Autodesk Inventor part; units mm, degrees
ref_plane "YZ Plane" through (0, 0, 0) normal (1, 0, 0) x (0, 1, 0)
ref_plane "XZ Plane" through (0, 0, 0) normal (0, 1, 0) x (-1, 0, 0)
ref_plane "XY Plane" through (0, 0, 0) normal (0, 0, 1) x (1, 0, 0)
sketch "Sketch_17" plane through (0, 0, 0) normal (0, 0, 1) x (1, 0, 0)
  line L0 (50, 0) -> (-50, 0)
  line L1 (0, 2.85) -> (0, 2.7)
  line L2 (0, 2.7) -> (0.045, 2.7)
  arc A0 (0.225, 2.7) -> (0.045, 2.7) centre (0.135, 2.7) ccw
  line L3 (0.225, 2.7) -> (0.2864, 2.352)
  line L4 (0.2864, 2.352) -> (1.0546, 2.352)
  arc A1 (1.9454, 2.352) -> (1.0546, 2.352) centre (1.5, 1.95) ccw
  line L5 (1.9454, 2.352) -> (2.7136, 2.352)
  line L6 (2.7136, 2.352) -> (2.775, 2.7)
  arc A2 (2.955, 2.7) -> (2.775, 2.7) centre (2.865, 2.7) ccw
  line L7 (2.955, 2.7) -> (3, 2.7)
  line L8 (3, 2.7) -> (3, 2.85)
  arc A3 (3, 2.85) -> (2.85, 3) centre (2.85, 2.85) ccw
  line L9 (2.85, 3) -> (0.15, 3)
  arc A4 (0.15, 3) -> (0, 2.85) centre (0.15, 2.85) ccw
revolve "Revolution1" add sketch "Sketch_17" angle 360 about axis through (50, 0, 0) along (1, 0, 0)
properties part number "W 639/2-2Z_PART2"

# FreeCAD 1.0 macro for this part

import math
import FreeCAD as App
import Part
import Sketcher

doc = App.newDocument("Part")
params = doc.addObject("Spreadsheet::Sheet", "Params")
for row, (alias, value) in enumerate([
    ("sketch1_radius", "0.6 mm"),
    ("sketch1_radius2", "0.15 mm"),
    ("sketch1_radius3", "0.09 mm"),
    ("sketch1_width", "2.7 mm"),
    ("sketch1_height", "0.15 mm"),
    ("revolution_angle", "360 deg"),
], start=1):
    params.set(f"A{row}", alias)
    params.set(f"B{row}", "=" + value)
    params.setAlias(f"B{row}", alias)

body = doc.addObject("PartDesign::Body", "Body")

sketch1 = body.newObject("Sketcher::SketchObject", "Sketch")
sketch1.AttachmentSupport = (doc.getObject("XY_Plane"), [""])
sketch1.MapMode = "FlatFace"
sketch1.addGeometry([
    Part.ArcOfCircle(Part.Circle(App.Vector(0.15, 2.85, 0), App.Vector(0, 0, 1), 0.15), math.radians(90), math.radians(180)),
    Part.LineSegment(App.Vector(0, 2.85, 0), App.Vector(0, 2.7, 0)),
    Part.LineSegment(App.Vector(0, 2.7, 0), App.Vector(0.045, 2.7, 0)),
    Part.ArcOfCircle(Part.Circle(App.Vector(0.135, 2.7, 0), App.Vector(0, 0, 1), 0.09), math.radians(0), math.radians(180)),
    Part.LineSegment(App.Vector(0.225, 2.7, 0), App.Vector(0.286, 2.352, 0)),
    Part.LineSegment(App.Vector(0.286, 2.352, 0), App.Vector(1.055, 2.352, 0)),
    Part.ArcOfCircle(Part.Circle(App.Vector(1.5, 1.95, 0), App.Vector(0, 0, 1), 0.6), math.radians(42), math.radians(138)),
    Part.LineSegment(App.Vector(1.945, 2.352, 0), App.Vector(2.714, 2.352, 0)),
    Part.LineSegment(App.Vector(2.714, 2.352, 0), App.Vector(2.775, 2.7, 0)),
    Part.ArcOfCircle(Part.Circle(App.Vector(2.865, 2.7, 0), App.Vector(0, 0, 1), 0.09), math.radians(0), math.radians(180)),
    Part.LineSegment(App.Vector(2.955, 2.7, 0), App.Vector(3, 2.7, 0)),
    Part.LineSegment(App.Vector(3, 2.7, 0), App.Vector(3, 2.85, 0)),
    Part.ArcOfCircle(Part.Circle(App.Vector(2.85, 2.85, 0), App.Vector(0, 0, 1), 0.15), math.radians(0), math.radians(90)),
    Part.LineSegment(App.Vector(2.85, 3, 0), App.Vector(0.15, 3, 0)),
], False)
sketch1.addConstraint([
    Sketcher.Constraint("Tangent", 0, 2, 1, 1),
    Sketcher.Constraint("Coincident", 1, 2, 2, 1),
    Sketcher.Constraint("Coincident", 2, 2, 3, 2),
    Sketcher.Constraint("Coincident", 3, 1, 4, 1),
    Sketcher.Constraint("Coincident", 4, 2, 5, 1),
    Sketcher.Constraint("Coincident", 5, 2, 6, 2),
    Sketcher.Constraint("Coincident", 6, 1, 7, 1),
    Sketcher.Constraint("Coincident", 7, 2, 8, 1),
    Sketcher.Constraint("Coincident", 8, 2, 9, 2),
    Sketcher.Constraint("Coincident", 9, 1, 10, 1),
    Sketcher.Constraint("Coincident", 10, 2, 11, 1),
    Sketcher.Constraint("Tangent", 11, 2, 12, 1),
    Sketcher.Constraint("Tangent", 12, 2, 13, 1),
    Sketcher.Constraint("Tangent", 13, 2, 0, 1),
    Sketcher.Constraint("Vertical", 1),
    Sketcher.Constraint("Horizontal", 2),
    Sketcher.Constraint("Horizontal", 5),
    Sketcher.Constraint("Horizontal", 7),
    Sketcher.Constraint("Horizontal", 10),
    Sketcher.Constraint("Vertical", 11),
    Sketcher.Constraint("Horizontal", 13),
    Sketcher.Constraint("Equal", 3, 9),
    Sketcher.Constraint("Equal", 0, 12),
    Sketcher.Constraint("PointOnObject", 0, 2, -2),
    Sketcher.Constraint("Horizontal", 3, 3, 9, 3),
    Sketcher.Constraint("Horizontal", 9, 3, 1, 2),
    Sketcher.Constraint("Horizontal", 2, 2, 3, 1),
    Sketcher.Constraint("Horizontal", 5, 2, 6, 1),
    Sketcher.Constraint("Horizontal", 3, 1, 8, 2),
    Sketcher.Constraint("Horizontal", 8, 2, 9, 1),
    Sketcher.Constraint("Equal", 5, 7),
    Sketcher.Constraint("Equal", 2, 10),
    Sketcher.Constraint("Equal", 4, 8),
    Sketcher.Constraint("Radius", 6, 0.6),
    Sketcher.Constraint("Radius", 0, 0.15),
    Sketcher.Constraint("Radius", 3, 0.09),
    Sketcher.Constraint("DistanceX", 13, 2, 13, 1, 2.7),
    Sketcher.Constraint("DistanceY", -1, 1, 12, 2, 3.0),
    Sketcher.Constraint("DistanceY", 1, 2, 1, 1, 0.15),
    Sketcher.Constraint("DistanceY", 6, 3, 0, 3, 0.9),
    Sketcher.Constraint("DistanceX", 2, 1, 2, 2, 0.045),
    Sketcher.Constraint("DistanceX", 5, 1, 5, 2, 0.7682),
    Sketcher.Constraint("DistanceY", -1, 1, 4, 2, 2.352),
])
sketch1.setExpression("Constraints[33]", "Params.sketch1_radius")
sketch1.setExpression("Constraints[34]", "Params.sketch1_radius2")
sketch1.setExpression("Constraints[35]", "Params.sketch1_radius3")
sketch1.setExpression("Constraints[36]", "Params.sketch1_width")
sketch1.setExpression("Constraints[38]", "Params.sketch1_height")
revolution = body.newObject("PartDesign::Revolution", "Revolution")
revolution.Profile = sketch1
revolution.ReferenceAxis = (sketch1, ["H_Axis"])
revolution.setExpression("Angle", "Params.revolution_angle")

doc.recompute()
